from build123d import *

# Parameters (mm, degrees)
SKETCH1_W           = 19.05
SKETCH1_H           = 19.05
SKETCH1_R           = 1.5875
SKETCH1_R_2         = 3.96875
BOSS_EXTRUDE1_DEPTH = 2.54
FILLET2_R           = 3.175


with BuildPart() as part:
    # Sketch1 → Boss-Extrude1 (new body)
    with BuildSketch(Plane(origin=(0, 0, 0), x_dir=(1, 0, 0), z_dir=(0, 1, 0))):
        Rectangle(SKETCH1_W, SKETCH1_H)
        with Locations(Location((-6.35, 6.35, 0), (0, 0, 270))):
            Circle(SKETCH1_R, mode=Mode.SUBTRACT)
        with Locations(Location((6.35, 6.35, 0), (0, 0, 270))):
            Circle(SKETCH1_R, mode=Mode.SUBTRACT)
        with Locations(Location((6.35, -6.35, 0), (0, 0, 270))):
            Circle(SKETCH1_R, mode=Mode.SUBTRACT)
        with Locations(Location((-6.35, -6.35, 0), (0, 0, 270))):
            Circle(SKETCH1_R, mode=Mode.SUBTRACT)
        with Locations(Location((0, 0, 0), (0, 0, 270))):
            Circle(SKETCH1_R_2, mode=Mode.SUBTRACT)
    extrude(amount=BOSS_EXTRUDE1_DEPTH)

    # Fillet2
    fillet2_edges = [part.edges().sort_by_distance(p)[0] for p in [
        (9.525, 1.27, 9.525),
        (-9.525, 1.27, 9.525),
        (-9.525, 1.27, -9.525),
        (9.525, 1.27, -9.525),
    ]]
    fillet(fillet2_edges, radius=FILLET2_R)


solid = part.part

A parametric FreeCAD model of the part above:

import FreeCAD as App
import Part
import Sketcher

V = App.Vector
Q = App.Units.Quantity


def edges_at(feature, points):
    """Names of the edges that pass closest to the given points."""
    edges = feature.Shape.Edges
    near = lambda p: min(range(len(edges)), key=lambda i: edges[i].distToShape(Part.Vertex(*p))[0])
    return sorted({f"Edge{near(p) + 1}" for p in points})

doc = App.newDocument("Part")
body = doc.addObject("PartDesign::Body", "Body")

# Sketch on XZ plane
sketch1 = body.newObject("Sketcher::SketchObject", "Sketch")
sketch1.AttachmentSupport = (doc.getObject("XZ_Plane"), [""])
sketch1.MapMode = "FlatFace"
sketch1.addGeometry([
    Part.LineSegment(V(-9.525, -9.525, 0), V(-9.525, 9.525, 0)),  # 0
    Part.LineSegment(V(-9.525, 9.525, 0), V(9.525, 9.525, 0)),  # 1
    Part.LineSegment(V(9.525, 9.525, 0), V(9.525, -9.525, 0)),  # 2
    Part.LineSegment(V(9.525, -9.525, 0), V(-9.525, -9.525, 0)),  # 3
    Part.Circle(V(-6.35, 6.35, 0), V(0, 0, 1), 1.5875),  # 4
    Part.Circle(V(6.35, 6.35, 0), V(0, 0, 1), 1.5875),  # 5
    Part.Circle(V(-6.35, -6.35, 0), V(0, 0, 1), 1.5875),  # 6
    Part.Circle(V(0, 0, 0), V(0, 0, 1), 3.96875),  # 7
    Part.Circle(V(6.35, -6.35, 0), V(0, 0, 1), 1.5875),  # 8
], False)
sketch1.addConstraint([
    Sketcher.Constraint("Coincident", 0, 2, 1, 1),
    Sketcher.Constraint("Coincident", 1, 2, 2, 1),
    Sketcher.Constraint("Coincident", 2, 2, 3, 1),
    Sketcher.Constraint("Coincident", 3, 2, 0, 1),
    Sketcher.Constraint("Vertical", 0),
    Sketcher.Constraint("Horizontal", 1),
    Sketcher.Constraint("Vertical", 2),
    Sketcher.Constraint("Horizontal", 3),
    Sketcher.Constraint("Coincident", 7, 3, -1, 1),
    Sketcher.Constraint("Equal", 4, 5),
    Sketcher.Constraint("Equal", 5, 6),
    Sketcher.Constraint("Equal", 6, 8),
    Sketcher.Constraint("Symmetric", 5, 3, 6, 3, -1, 1),
    Sketcher.Constraint("Symmetric", 4, 3, 8, 3, -1, 1),
    Sketcher.Constraint("Symmetric", 0, 2, 2, 2, -1, 1),
    Sketcher.Constraint("Symmetric", 4, 3, 5, 3, -2),
    Sketcher.Constraint("Equal", 3, 0),
    Sketcher.Constraint("Diameter", 4, Q("0.125 in")),
    Sketcher.Constraint("Diameter", 7, Q("0.3125 in")),
    Sketcher.Constraint("DistanceX", 1, 1, 1, 2, Q("0.75 in")),
    Sketcher.Constraint("DistanceX", 4, 3, 5, 3, Q("0.5 in")),
    Sketcher.Constraint("DistanceY", 6, 3, 4, 3, Q("0.5 in")),
])
pad1 = body.newObject("PartDesign::Pad", "Pad")
pad1.Profile = sketch1
pad1.Length = Q("0.1 in")
pad1.Reversed = True
doc.recompute()

fillet = body.newObject("PartDesign::Fillet", "Fillet")
fillet.Base = (pad1, edges_at(pad1, [
    (9.525, 1.27, 9.525),
    (-9.525, 1.27, 9.525),
    (-9.525, 1.27, -9.525),
    (9.525, 1.27, -9.525),
]))
fillet.Radius = Q("0.125 in")

doc.recompute()
